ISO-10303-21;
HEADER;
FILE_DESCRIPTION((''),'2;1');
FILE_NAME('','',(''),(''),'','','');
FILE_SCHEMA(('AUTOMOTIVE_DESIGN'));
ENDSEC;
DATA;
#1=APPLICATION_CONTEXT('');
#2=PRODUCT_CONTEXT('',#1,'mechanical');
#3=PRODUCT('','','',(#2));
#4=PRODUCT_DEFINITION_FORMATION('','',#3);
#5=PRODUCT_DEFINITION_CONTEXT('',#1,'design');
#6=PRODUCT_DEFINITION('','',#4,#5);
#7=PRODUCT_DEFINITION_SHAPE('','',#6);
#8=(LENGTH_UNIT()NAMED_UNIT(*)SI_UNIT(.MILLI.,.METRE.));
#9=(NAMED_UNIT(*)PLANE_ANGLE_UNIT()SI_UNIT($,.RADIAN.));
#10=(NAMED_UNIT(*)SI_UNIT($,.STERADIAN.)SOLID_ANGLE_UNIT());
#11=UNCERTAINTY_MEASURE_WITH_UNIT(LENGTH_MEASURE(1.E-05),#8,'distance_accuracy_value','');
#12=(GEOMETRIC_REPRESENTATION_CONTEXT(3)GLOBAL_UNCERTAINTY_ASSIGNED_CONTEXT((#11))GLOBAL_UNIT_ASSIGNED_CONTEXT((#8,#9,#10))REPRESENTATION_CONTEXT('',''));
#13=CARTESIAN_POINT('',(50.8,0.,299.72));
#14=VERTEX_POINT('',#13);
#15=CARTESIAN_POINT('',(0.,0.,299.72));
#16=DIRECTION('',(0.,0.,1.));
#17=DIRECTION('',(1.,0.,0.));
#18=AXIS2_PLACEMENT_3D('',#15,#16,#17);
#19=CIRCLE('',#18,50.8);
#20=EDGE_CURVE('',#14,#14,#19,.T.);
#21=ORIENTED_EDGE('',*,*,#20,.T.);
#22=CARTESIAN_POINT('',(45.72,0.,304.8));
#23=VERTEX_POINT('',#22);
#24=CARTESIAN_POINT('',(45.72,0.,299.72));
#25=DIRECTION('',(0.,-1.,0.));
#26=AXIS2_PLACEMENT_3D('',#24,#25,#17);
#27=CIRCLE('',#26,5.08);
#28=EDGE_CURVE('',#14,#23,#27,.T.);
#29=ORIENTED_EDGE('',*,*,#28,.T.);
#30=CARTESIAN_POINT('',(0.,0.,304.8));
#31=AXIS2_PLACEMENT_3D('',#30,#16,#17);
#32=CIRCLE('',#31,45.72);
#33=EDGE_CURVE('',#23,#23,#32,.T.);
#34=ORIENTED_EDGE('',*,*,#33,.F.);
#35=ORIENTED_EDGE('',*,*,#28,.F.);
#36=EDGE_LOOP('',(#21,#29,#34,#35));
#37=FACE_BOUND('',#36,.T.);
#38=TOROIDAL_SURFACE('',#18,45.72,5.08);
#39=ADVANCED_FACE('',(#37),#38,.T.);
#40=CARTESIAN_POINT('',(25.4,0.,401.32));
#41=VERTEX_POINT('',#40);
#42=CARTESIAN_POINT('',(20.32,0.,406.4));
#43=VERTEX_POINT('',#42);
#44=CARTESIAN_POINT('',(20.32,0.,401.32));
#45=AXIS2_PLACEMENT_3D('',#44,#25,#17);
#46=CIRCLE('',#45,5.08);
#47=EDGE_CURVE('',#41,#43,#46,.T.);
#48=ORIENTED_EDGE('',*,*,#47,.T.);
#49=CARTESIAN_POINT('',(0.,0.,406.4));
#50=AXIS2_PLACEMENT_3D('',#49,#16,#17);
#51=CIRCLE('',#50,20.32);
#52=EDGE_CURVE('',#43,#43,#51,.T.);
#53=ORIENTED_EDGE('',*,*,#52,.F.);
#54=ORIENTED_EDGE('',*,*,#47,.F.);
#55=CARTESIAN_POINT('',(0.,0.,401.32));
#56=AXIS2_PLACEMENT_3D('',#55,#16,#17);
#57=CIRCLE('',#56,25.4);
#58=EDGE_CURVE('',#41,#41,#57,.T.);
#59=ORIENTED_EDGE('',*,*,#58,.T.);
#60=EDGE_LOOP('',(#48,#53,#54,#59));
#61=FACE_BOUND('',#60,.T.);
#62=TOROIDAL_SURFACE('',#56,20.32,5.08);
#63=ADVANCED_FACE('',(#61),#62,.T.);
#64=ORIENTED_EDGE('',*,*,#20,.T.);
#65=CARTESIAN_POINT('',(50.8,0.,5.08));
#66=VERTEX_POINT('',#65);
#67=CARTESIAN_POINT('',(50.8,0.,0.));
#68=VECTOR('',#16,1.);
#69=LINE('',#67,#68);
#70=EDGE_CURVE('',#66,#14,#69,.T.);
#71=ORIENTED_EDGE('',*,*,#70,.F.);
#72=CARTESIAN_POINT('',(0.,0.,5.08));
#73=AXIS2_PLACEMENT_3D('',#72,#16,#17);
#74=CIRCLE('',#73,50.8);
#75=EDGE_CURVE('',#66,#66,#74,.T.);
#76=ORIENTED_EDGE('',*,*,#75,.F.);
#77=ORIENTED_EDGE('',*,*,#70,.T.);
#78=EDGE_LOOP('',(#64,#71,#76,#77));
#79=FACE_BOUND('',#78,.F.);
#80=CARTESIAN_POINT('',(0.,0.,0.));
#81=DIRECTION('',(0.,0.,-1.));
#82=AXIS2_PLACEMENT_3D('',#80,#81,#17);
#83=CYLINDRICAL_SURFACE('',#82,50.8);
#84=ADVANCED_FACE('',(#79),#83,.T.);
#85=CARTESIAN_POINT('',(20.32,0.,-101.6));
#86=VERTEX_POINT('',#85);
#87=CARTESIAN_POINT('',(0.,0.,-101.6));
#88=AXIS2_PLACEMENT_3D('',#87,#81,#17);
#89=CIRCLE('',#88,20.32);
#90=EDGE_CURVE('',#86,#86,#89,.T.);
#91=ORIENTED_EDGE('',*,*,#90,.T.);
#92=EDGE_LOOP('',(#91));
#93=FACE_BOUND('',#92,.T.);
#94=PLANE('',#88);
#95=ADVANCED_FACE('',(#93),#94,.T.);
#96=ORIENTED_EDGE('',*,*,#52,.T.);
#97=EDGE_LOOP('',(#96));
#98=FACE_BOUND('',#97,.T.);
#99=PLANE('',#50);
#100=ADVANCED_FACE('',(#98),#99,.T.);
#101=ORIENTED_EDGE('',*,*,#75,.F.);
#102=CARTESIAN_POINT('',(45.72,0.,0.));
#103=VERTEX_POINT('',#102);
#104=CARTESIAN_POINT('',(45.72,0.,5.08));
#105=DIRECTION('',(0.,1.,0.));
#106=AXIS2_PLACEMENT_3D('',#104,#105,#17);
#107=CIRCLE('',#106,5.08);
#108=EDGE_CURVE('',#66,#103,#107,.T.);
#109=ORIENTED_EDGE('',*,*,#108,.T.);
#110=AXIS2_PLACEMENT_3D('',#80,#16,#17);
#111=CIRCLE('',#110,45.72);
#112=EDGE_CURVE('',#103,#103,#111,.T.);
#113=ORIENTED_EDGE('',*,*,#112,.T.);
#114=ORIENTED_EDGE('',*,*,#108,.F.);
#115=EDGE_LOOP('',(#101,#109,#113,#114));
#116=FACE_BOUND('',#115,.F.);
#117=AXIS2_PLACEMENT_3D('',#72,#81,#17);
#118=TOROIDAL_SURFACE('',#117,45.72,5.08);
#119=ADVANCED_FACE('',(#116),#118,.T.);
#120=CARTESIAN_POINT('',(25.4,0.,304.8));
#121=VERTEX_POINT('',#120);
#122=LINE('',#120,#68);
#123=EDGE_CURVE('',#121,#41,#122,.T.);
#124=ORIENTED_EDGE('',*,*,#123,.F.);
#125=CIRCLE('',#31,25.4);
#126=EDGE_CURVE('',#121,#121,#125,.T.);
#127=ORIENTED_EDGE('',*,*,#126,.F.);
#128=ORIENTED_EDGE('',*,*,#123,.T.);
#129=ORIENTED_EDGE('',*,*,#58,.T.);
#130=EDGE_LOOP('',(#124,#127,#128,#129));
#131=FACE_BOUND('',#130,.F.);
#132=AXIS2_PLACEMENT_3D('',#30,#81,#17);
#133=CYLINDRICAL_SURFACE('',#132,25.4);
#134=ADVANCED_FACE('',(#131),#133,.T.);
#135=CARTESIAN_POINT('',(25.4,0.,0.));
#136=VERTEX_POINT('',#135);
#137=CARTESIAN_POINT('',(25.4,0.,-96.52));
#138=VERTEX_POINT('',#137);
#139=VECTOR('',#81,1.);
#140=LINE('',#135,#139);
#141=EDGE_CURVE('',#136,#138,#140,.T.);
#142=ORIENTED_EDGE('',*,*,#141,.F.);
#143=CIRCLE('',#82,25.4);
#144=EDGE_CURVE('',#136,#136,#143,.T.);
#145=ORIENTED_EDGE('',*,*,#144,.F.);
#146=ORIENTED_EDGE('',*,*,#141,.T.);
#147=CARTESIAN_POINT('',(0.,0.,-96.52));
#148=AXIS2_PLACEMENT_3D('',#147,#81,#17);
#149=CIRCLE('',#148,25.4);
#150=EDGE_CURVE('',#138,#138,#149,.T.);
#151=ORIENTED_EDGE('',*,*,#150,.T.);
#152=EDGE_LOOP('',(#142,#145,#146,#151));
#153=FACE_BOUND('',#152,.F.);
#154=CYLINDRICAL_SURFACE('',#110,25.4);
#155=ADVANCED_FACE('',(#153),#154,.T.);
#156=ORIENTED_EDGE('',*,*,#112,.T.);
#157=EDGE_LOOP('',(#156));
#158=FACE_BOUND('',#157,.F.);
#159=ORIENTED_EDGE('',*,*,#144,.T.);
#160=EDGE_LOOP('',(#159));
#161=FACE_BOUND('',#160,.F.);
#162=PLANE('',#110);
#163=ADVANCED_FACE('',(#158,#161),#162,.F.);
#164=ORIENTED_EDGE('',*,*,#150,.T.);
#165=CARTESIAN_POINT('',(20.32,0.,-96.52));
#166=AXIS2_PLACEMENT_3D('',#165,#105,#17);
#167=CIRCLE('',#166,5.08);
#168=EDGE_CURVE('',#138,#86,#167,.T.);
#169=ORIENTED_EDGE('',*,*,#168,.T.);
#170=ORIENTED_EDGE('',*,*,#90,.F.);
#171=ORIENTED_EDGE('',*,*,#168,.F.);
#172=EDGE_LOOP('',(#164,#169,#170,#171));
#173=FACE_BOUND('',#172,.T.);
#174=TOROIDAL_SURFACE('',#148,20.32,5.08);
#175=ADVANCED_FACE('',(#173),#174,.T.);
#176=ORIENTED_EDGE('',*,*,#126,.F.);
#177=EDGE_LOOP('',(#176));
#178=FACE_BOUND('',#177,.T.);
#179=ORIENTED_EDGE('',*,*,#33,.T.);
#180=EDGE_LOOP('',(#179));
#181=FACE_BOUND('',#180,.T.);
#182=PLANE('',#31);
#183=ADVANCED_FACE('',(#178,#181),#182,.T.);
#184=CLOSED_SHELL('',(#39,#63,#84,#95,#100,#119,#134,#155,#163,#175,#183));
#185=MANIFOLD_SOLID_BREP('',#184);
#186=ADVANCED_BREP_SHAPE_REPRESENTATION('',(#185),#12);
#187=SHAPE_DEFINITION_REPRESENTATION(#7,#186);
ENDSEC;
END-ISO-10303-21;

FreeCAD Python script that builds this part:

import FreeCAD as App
import Part
import Sketcher
from FreeCAD import Vector
Q = App.Units.Quantity


def edges_at(feature, points):
    """Names of the edges that pass closest to the given points."""
    edges = feature.Shape.Edges
    near = lambda p: min(range(len(edges)), key=lambda i: edges[i].distToShape(Part.Vertex(*p))[0])
    return sorted({f"Edge{near(p) + 1}" for p in points})

doc = App.newDocument("Part")
body = doc.addObject("PartDesign::Body", "Body")

# Sketch on XY plane
sketch1 = body.newObject("Sketcher::SketchObject", "Sketch")
sketch1.AttachmentSupport = (doc.getObject("XY_Plane"), [""])
sketch1.MapMode = "FlatFace"
sketch1.addGeometry(Part.Circle(Vector(0, 0, 0), Vector(0, 0, 1), 51), False)
sketch1.addConstraint([
    Sketcher.Constraint("Coincident", 0, 3, -1, 1),
    Sketcher.Constraint("Diameter", 0, Q("4 in")),
])
pad1 = body.newObject("PartDesign::Pad", "Pad")
pad1.Profile = sketch1
pad1.Length = Q("12 in")
doc.recompute()

fillet = body.newObject("PartDesign::Fillet", "Fillet")
fillet.Base = (pad1, edges_at(pad1, [(-50.8, 0, 304.8)]))
fillet.Radius = Q("0.2 in")
doc.recompute()

fillet2 = body.newObject("PartDesign::Fillet", "Fillet001")
fillet2.Base = (fillet, edges_at(fillet, [(-50.8, 0, 0)]))
fillet2.Radius = Q("0.2 in")

# Sketch on XY plane
sketch2 = body.newObject("Sketcher::SketchObject", "Sketch001")
sketch2.AttachmentSupport = (doc.getObject("XY_Plane"), [""])
sketch2.MapMode = "FlatFace"
sketch2.addGeometry(Part.Circle(Vector(0, 0, 0), Vector(0, 0, 1), 25), False)
sketch2.addConstraint([
    Sketcher.Constraint("Coincident", 0, 3, -1, 1),
    Sketcher.Constraint("Diameter", 0, Q("2 in")),
])
pad2 = body.newObject("PartDesign::Pad", "Pad001")
pad2.Profile = sketch2
pad2.Length = Q("4 in")
pad2.Reversed = True
doc.recompute()

fillet3 = body.newObject("PartDesign::Fillet", "Fillet002")
fillet3.Base = (pad2, edges_at(pad2, [(-25.4, 0, -101.6)]))
fillet3.Radius = Q("0.2 in")

# Sketch on XY plane
sketch3 = body.newObject("Sketcher::SketchObject", "Sketch002")
sketch3.AttachmentSupport = (doc.getObject("XY_Plane"), [""])
sketch3.MapMode = "FlatFace"
sketch3.AttachmentOffset = App.Placement(Vector(0, 0, 12 * 25.4), App.Rotation())
sketch3.addGeometry(Part.Circle(Vector(0, 0, 0), Vector(0, 0, 1), 25), False)
sketch3.addConstraint([
    Sketcher.Constraint("Coincident", 0, 3, -1, 1),
    Sketcher.Constraint("Diameter", 0, Q("2 in")),
])
pad3 = body.newObject("PartDesign::Pad", "Pad002")
pad3.Profile = sketch3
pad3.Length = Q("4 in")
doc.recompute()

fillet4 = body.newObject("PartDesign::Fillet", "Fillet003")
fillet4.Base = (pad3, edges_at(pad3, [(-25.4, 0, 406.4)]))
fillet4.Radius = Q("0.2 in")

doc.recompute()
